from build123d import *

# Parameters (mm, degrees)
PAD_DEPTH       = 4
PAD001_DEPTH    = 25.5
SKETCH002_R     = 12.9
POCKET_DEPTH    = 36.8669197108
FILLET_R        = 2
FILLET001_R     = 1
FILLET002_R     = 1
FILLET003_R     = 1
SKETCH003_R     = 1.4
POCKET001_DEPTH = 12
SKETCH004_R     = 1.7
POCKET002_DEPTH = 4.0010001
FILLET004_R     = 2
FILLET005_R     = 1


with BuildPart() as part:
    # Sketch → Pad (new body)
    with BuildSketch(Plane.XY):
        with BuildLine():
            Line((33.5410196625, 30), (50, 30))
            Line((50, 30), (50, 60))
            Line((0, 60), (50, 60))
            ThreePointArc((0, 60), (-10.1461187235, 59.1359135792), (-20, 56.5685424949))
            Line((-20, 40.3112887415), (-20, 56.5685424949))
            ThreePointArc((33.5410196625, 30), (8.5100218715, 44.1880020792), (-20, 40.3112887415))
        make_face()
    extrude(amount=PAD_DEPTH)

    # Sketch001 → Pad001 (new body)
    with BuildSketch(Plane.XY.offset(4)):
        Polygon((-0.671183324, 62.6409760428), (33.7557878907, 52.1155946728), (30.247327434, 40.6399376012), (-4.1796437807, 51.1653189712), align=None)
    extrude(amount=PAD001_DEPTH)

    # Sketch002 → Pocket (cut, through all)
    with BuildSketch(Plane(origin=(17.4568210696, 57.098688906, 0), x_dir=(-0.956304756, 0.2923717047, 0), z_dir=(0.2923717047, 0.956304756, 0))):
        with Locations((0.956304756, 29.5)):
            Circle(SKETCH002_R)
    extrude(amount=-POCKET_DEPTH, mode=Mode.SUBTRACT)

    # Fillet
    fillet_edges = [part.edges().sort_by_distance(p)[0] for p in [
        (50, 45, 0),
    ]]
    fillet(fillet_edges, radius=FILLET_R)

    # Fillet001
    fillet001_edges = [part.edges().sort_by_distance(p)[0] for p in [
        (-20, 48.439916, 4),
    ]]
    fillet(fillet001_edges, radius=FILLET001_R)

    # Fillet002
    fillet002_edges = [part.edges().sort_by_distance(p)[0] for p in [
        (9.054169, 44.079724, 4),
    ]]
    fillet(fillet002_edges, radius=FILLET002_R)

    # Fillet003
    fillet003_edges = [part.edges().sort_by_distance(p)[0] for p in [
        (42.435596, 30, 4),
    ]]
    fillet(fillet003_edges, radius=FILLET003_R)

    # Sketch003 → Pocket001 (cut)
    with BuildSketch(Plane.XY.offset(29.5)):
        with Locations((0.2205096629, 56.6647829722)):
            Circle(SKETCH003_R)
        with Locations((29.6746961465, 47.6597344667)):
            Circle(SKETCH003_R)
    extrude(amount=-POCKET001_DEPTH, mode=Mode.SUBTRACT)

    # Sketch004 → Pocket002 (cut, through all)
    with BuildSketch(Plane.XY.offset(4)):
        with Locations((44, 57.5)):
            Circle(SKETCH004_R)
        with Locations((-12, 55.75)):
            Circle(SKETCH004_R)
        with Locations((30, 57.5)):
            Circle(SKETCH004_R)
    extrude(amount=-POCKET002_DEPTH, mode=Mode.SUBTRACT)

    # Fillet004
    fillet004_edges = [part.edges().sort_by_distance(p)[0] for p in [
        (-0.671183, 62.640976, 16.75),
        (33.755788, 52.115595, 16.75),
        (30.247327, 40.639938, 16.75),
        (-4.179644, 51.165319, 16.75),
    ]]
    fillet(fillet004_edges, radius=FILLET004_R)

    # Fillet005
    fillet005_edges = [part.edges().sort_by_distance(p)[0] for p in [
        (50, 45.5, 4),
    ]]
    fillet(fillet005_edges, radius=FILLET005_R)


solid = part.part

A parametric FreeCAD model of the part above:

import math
import FreeCAD as App
import Part
import Sketcher

V = App.Vector
Q = App.Units.Quantity


def edges_at(feature, points):
    """Names of the edges that pass closest to the given points."""
    edges = feature.Shape.Edges
    near = lambda p: min(range(len(edges)), key=lambda i: edges[i].distToShape(Part.Vertex(*p))[0])
    return sorted({f"Edge{near(p) + 1}" for p in points})

doc = App.newDocument("Part")
body = doc.addObject("PartDesign::Body", "Body")

# Sketch on XY plane
sketch1 = doc.addObject("Sketcher::SketchObject", "Sketch")
body.addObject(sketch1)
sketch1.AttachmentSupport = (doc.XY_Plane, [""])
sketch1.MapMode = "FlatFace"
sketch1.addGeometry([
    Part.LineSegment(V(33.54102, 30, 0), V(50, 30, 0)),  # 0
    Part.LineSegment(V(50, 30, 0), V(50, 60, 0)),  # 1
    Part.LineSegment(V(50, 60, 0), V(0, 60, 0)),  # 2
    Part.ArcOfCircle(Part.Circle(V(0, 0, 0), V(0, 0, 1), 60), math.radians(90), math.radians(109.471221)),  # 3
    Part.LineSegment(V(-20, 56.568542, 0), V(-20, 40.311289, 0)),  # 4
    Part.ArcOfCircle(Part.Circle(V(0, 0, 0), V(0, 0, 1), 45), math.radians(41.810315), math.radians(116.3878)),  # 5
], False)
sketch1.addConstraint([
    Sketcher.Constraint("Coincident", 0, 2, 1, 1),
    Sketcher.Constraint("Coincident", 1, 2, 2, 1),
    Sketcher.Constraint("Tangent", 2, 2, 3, 1),
    Sketcher.Constraint("Coincident", 3, 2, 4, 1),
    Sketcher.Constraint("Coincident", 4, 2, 5, 2),
    Sketcher.Constraint("Coincident", 5, 1, 0, 1),
    Sketcher.Constraint("Horizontal", 0),
    Sketcher.Constraint("Vertical", 1),
    Sketcher.Constraint("Horizontal", 2),
    Sketcher.Constraint("Vertical", 4),
    Sketcher.Constraint("Coincident", 3, 3, -1, 1),
    Sketcher.Constraint("Coincident", 5, 3, -1, 1),
    Sketcher.Constraint("Radius", 3, Q("60 mm")),
    Sketcher.Constraint("Radius", 5, Q("45 mm")),
    Sketcher.Constraint("DistanceX", 2, 2, 2, 1, Q("50 mm")),
    Sketcher.Constraint("DistanceY", 1, 1, 1, 2, Q("30 mm")),
    Sketcher.Constraint("DistanceX", 3, 2, -1, 1, Q("20 mm")),
])
pad1 = doc.addObject("PartDesign::Pad", "Pad")
body.addObject(pad1)
pad1.Profile = sketch1
pad1.Length = 4

# Sketch on XY plane
sketch2 = doc.addObject("Sketcher::SketchObject", "Sketch001")
body.addObject(sketch2)
sketch2.AttachmentSupport = (doc.XY_Plane, [""])
sketch2.MapMode = "FlatFace"
sketch2.AttachmentOffset = App.Placement(V(0, 0, 4), App.Rotation())
sketch2.addGeometry([
    Part.LineSegment(V(33.755788, 52.115595, 0), V(-0.671183, 62.640976, 0)),
    Part.LineSegment(V(-0.671183, 62.640976, 0), V(-4.179644, 51.165319, 0)),
    Part.LineSegment(V(-4.179644, 51.165319, 0), V(30.247327, 40.639938, 0)),
    Part.LineSegment(V(30.247327, 40.639938, 0), V(33.755788, 52.115595, 0)),
], False)
sketch2.addConstraint([
    Sketcher.Constraint("Coincident", 0, 2, 1, 1),
    Sketcher.Constraint("Coincident", 1, 2, 2, 1),
    Sketcher.Constraint("Coincident", 2, 2, 3, 1),
    Sketcher.Constraint("Coincident", 3, 2, 0, 1),
    Sketcher.Constraint("Perpendicular", 0, 1),
    Sketcher.Constraint("Perpendicular", 1, 2),
    Sketcher.Constraint("Perpendicular", 2, 3),
    Sketcher.Constraint("Angle", 0, Q("163 deg")),
    Sketcher.Constraint("Distance", 0, Q("36 mm")),
    Sketcher.Constraint("Distance", 1, Q("12 mm")),
    Sketcher.Constraint("DistanceY", -1, 1, 1, 2, Q("51.165319 mm")),
    Sketcher.Constraint("DistanceX", 0, 2, -1, 1, Q("0.671183 mm")),
])
pad2 = doc.addObject("PartDesign::Pad", "Pad001")
body.addObject(pad2)
pad2.Profile = sketch2
pad2.Length = 25.5

# Sketch on an angled plane
sketch3 = doc.addObject("Sketcher::SketchObject", "Sketch002")
body.addObject(sketch3)
sketch3.Placement = App.Placement(V(17.456821, 57.098689, 0), App.Rotation(V(-0.956304756, 0.292371705, 0), V(0, 0, 1), V(0.292371705, 0.956304756, 0), "ZXY"))
sketch3.addGeometry(Part.Circle(V(0.956305, 29.5, 0), V(0, 0, 1), 12.9), False)
sketch3.addConstraint([
    Sketcher.Constraint("Diameter", 0, Q("25.8 mm")),
    Sketcher.Constraint("DistanceY", -1, 1, 0, 3, Q("29.5 mm")),
    Sketcher.Constraint("DistanceX", -1, 1, 0, 3, Q("0.956305 mm")),
])
pocket1 = doc.addObject("PartDesign::Pocket", "Pocket")
body.addObject(pocket1)
pocket1.Profile = sketch3
pocket1.Type = "ThroughAll"
doc.recompute()

fillet = doc.addObject("PartDesign::Fillet", "Fillet")
body.addObject(fillet)
fillet.Base = (pocket1, edges_at(pocket1, [(50, 45, 0)]))
fillet.Radius = 2
doc.recompute()

fillet2 = doc.addObject("PartDesign::Fillet", "Fillet001")
body.addObject(fillet2)
fillet2.Base = (fillet, edges_at(fillet, [(-20, 48.44, 4)]))
fillet2.Radius = 1
doc.recompute()

fillet3 = doc.addObject("PartDesign::Fillet", "Fillet002")
body.addObject(fillet3)
fillet3.Base = (fillet2, edges_at(fillet2, [(9.054, 44.08, 4)]))
fillet3.Radius = 1
doc.recompute()

fillet4 = doc.addObject("PartDesign::Fillet", "Fillet003")
body.addObject(fillet4)
fillet4.Base = (fillet3, edges_at(fillet3, [(42.436, 30, 4)]))
fillet4.Radius = 1

# Sketch on XY plane
sketch4 = doc.addObject("Sketcher::SketchObject", "Sketch003")
body.addObject(sketch4)
sketch4.AttachmentSupport = (doc.XY_Plane, [""])
sketch4.MapMode = "FlatFace"
sketch4.AttachmentOffset = App.Placement(V(0, 0, 29.5), App.Rotation())
sketch4.addGeometry([
    Part.Circle(V(0.22051, 56.664783, 0), V(0, 0, 1), 1.4),
    Part.Circle(V(29.674696, 47.659734, 0), V(0, 0, 1), 1.4),
], False)
sketch4.addConstraint([
    Sketcher.Constraint("Equal", 0, 1),
    Sketcher.Constraint("Diameter", 0, Q("2.8 mm")),
    Sketcher.Constraint("DistanceX", -1, 1, 0, 3, Q("0.22051 mm")),
    Sketcher.Constraint("DistanceY", 1, 3, 0, 3, Q("9.005049 mm")),
    Sketcher.Constraint("DistanceY", -1, 1, 0, 3, Q("56.664783 mm")),
    Sketcher.Constraint("DistanceX", -1, 1, 1, 3, Q("29.674696 mm")),
])
pocket2 = doc.addObject("PartDesign::Pocket", "Pocket001")
body.addObject(pocket2)
pocket2.Profile = sketch4
pocket2.Length = 12

# Sketch on XY plane
sketch5 = doc.addObject("Sketcher::SketchObject", "Sketch004")
body.addObject(sketch5)
sketch5.AttachmentSupport = (doc.XY_Plane, [""])
sketch5.MapMode = "FlatFace"
sketch5.AttachmentOffset = App.Placement(V(0, 0, 4), App.Rotation())
sketch5.addGeometry([
    Part.Circle(V(44, 57.5, 0), V(0, 0, 1), 1.7),
    Part.Circle(V(-12, 55.75, 0), V(0, 0, 1), 1.7),
    Part.Circle(V(30, 57.5, 0), V(0, 0, 1), 1.7),
], False)
sketch5.addConstraint([
    Sketcher.Constraint("Equal", 0, 1),
    Sketcher.Constraint("Equal", 1, 2),
    Sketcher.Constraint("Horizontal", 0, 3, 2, 3),
    Sketcher.Constraint("Diameter", 0, Q("3.4 mm")),
    Sketcher.Constraint("DistanceX", -1, 1, 0, 3, Q("44 mm")),
    Sketcher.Constraint("DistanceX", 1, 3, -1, 1, Q("12 mm")),
    Sketcher.Constraint("DistanceX", -1, 1, 2, 3, Q("30 mm")),
    Sketcher.Constraint("DistanceY", -1, 1, 0, 3, Q("57.5 mm")),
    Sketcher.Constraint("DistanceY", -1, 1, 1, 3, Q("55.75 mm")),
])
pocket3 = doc.addObject("PartDesign::Pocket", "Pocket002")
body.addObject(pocket3)
pocket3.Profile = sketch5
pocket3.Type = "ThroughAll"
doc.recompute()

fillet5 = doc.addObject("PartDesign::Fillet", "Fillet004")
body.addObject(fillet5)
fillet5.Base = (pocket3, edges_at(pocket3, [
    (-0.671, 62.641, 16.75),
    (33.756, 52.116, 16.75),
    (30.247, 40.64, 16.75),
    (-4.18, 51.165, 16.75),
]))
fillet5.Radius = 2
doc.recompute()

fillet6 = doc.addObject("PartDesign::Fillet", "Fillet005")
body.addObject(fillet6)
fillet6.Base = (fillet5, edges_at(fillet5, [(50, 45.5, 4)]))
fillet6.Radius = 1

doc.recompute()
